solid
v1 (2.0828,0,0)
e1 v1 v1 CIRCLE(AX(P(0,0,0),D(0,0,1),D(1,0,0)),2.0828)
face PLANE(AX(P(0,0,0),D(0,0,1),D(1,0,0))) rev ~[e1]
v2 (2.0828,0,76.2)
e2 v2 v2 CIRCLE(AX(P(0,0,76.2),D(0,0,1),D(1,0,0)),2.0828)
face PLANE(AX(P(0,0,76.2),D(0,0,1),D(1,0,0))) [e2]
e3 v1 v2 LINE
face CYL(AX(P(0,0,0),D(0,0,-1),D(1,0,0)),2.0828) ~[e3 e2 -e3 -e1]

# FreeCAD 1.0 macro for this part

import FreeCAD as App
import Part
import Sketcher

V = App.Vector
Q = App.Units.Quantity

doc = App.newDocument("Part")
body = doc.addObject("PartDesign::Body", "Body")

sketch1 = doc.addObject("Sketcher::SketchObject", "Sketch")
body.addObject(sketch1)
sketch1.AttachmentSupport = (doc.XY_Plane, [""])
sketch1.MapMode = "FlatFace"
sketch1.addGeometry(Part.Circle(V(0, 0, 0), V(0, 0, 1), 2.0828), False)
sketch1.addConstraint([
    Sketcher.Constraint("Coincident", 0, 3, -1, 1),
    Sketcher.Constraint("Diameter", 0, Q("0.164 in")),
])
pad1 = doc.addObject("PartDesign::Pad", "Pad")
body.addObject(pad1)
pad1.Profile = sketch1
pad1.Length = Q("3 in")

doc.recompute()
